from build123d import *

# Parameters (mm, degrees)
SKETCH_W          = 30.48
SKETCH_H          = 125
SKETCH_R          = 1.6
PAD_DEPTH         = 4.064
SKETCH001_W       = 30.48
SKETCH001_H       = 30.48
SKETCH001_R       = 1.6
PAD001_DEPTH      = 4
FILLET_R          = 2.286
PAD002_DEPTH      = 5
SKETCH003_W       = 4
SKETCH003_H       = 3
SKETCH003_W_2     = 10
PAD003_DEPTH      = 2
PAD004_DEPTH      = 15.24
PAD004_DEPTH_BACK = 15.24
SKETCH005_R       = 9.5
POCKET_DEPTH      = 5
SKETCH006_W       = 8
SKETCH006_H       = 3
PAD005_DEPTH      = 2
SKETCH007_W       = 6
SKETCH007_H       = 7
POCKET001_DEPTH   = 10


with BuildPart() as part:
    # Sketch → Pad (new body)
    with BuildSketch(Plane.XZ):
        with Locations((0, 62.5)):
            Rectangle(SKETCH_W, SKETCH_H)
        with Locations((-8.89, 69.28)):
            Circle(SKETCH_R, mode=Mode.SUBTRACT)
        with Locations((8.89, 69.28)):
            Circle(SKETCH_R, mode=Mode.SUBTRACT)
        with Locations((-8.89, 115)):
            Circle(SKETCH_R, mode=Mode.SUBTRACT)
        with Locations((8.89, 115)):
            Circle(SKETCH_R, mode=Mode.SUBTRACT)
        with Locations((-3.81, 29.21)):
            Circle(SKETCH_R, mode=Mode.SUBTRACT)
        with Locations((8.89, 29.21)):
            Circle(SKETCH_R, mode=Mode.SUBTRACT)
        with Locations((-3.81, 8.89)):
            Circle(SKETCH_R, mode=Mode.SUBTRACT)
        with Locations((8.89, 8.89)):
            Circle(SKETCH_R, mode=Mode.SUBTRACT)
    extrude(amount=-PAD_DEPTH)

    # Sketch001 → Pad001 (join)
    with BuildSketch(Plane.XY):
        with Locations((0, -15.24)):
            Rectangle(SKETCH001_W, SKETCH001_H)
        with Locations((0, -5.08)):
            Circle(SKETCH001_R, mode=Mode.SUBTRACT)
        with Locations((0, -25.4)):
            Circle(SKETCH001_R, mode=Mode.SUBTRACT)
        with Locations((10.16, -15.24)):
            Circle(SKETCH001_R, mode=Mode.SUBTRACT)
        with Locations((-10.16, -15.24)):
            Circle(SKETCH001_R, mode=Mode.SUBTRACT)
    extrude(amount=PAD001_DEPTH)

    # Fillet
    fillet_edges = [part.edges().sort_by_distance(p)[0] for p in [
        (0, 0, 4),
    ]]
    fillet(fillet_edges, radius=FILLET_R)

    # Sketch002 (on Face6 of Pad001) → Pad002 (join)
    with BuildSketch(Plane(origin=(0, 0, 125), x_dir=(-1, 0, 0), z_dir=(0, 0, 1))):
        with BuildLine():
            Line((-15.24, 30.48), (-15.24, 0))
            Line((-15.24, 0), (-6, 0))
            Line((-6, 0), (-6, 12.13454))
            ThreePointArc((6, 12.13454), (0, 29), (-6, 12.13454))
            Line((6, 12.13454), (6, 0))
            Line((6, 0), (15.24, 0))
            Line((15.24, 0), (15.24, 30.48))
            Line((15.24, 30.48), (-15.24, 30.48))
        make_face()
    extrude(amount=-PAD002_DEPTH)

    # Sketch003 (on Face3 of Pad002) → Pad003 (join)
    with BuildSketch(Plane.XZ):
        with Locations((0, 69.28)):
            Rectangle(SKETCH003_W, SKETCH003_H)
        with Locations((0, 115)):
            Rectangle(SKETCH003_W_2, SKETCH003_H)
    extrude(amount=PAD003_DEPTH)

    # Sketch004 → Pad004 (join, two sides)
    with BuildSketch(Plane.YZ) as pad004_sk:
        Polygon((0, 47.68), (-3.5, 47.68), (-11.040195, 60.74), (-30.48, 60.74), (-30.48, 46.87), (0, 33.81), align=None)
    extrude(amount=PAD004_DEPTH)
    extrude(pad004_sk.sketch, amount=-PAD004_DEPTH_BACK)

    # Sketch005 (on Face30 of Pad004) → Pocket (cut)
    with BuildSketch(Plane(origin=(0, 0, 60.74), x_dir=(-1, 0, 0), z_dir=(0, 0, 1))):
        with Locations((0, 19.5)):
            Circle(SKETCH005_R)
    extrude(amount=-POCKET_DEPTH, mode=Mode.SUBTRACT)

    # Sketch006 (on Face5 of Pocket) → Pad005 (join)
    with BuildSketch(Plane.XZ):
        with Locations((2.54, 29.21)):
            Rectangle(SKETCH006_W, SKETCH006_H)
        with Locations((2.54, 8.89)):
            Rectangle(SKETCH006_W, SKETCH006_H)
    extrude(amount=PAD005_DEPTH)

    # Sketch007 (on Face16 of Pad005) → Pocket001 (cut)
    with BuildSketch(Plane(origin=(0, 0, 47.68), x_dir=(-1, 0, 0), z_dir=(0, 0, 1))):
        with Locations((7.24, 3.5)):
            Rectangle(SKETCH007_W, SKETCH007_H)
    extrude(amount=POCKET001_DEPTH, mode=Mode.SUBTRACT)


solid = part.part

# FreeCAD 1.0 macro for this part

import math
import FreeCAD as App
import Part
import Sketcher
Q = App.Units.Quantity


def edges_at(feature, points):
    """Names of the edges that pass closest to the given points."""
    edges = feature.Shape.Edges
    near = lambda p: min(range(len(edges)), key=lambda i: edges[i].distToShape(Part.Vertex(*p))[0])
    return sorted({f"Edge{near(p) + 1}" for p in points})

doc = App.newDocument("Part")
body = doc.addObject("PartDesign::Body", "Body")

# Sketch on XZ plane
sketch1 = doc.addObject("Sketcher::SketchObject", "Sketch")
body.addObject(sketch1)
sketch1.AttachmentSupport = (doc.XZ_Plane, [""])
sketch1.MapMode = "FlatFace"
sketch1.addGeometry([
    Part.LineSegment(App.Vector(-15.2, 125, 0), App.Vector(-15.2, 0, 0)),  # 0
    Part.LineSegment(App.Vector(-15.2, 0, 0), App.Vector(15.2, 0, 0)),  # 1
    Part.LineSegment(App.Vector(15.2, 0, 0), App.Vector(15.2, 125, 0)),  # 2
    Part.LineSegment(App.Vector(15.2, 125, 0), App.Vector(-15.2, 125, 0)),  # 3
    Part.Circle(App.Vector(-3.8, 8.9, 0), App.Vector(0, 0, 1), 1.6),  # 4
    Part.Circle(App.Vector(-3.8, 29.2, 0), App.Vector(0, 0, 1), 1.6),  # 5
    Part.Circle(App.Vector(8.9, 8.9, 0), App.Vector(0, 0, 1), 1.6),  # 6
    Part.Circle(App.Vector(8.9, 29.2, 0), App.Vector(0, 0, 1), 1.6),  # 7
    Part.Circle(App.Vector(-8.9, 69.3, 0), App.Vector(0, 0, 1), 1.6),  # 8
    Part.Circle(App.Vector(-8.9, 115, 0), App.Vector(0, 0, 1), 1.6),  # 9
    Part.Circle(App.Vector(8.9, 69.3, 0), App.Vector(0, 0, 1), 1.6),  # 10
    Part.Circle(App.Vector(8.9, 115, 0), App.Vector(0, 0, 1), 1.6),  # 11
], False)
sketch1.addConstraint([
    Sketcher.Constraint("Coincident", 0, 2, 1, 1),
    Sketcher.Constraint("Coincident", 1, 2, 2, 1),
    Sketcher.Constraint("Coincident", 2, 2, 3, 1),
    Sketcher.Constraint("Coincident", 3, 2, 0, 1),
    Sketcher.Constraint("Vertical", 0),
    Sketcher.Constraint("Horizontal", 1),
    Sketcher.Constraint("Vertical", 2),
    Sketcher.Constraint("Horizontal", 3),
    Sketcher.Constraint("Equal", 4, 5),
    Sketcher.Constraint("Equal", 5, 6),
    Sketcher.Constraint("Equal", 6, 7),
    Sketcher.Constraint("Equal", 7, 8),
    Sketcher.Constraint("Equal", 8, 9),
    Sketcher.Constraint("Equal", 9, 10),
    Sketcher.Constraint("Equal", 10, 11),
    Sketcher.Constraint("Symmetric", 0, 2, 1, 2, -1, 1),
    Sketcher.Constraint("Symmetric", 8, 3, 10, 3, -2),
    Sketcher.Constraint("Symmetric", 9, 3, 11, 3, -2),
    Sketcher.Constraint("Horizontal", 4, 3, 6, 3),
    Sketcher.Constraint("Horizontal", 5, 3, 7, 3),
    Sketcher.Constraint("Vertical", 4, 3, 5, 3),
    Sketcher.Constraint("Vertical", 6, 3, 7, 3),
    Sketcher.Constraint("Vertical", 8, 3, 9, 3),
    Sketcher.Constraint("Vertical", 7, 3, 10, 3),
    Sketcher.Constraint("Diameter", 4, 3.2),
    Sketcher.Constraint("DistanceY", 0, 2, 0, 1, 125.0),
    Sketcher.Constraint("DistanceY", -1, 1, 9, 3, 115.0),
    Sketcher.Constraint("DistanceX", 1, 1, 1, 2, 30.48),
    Sketcher.Constraint("DistanceX", 4, 3, 6, 3, 12.7),
    Sketcher.Constraint("DistanceX", 4, 3, -1, 1, 3.81),
    Sketcher.Constraint("DistanceY", -1, 1, 4, 3, 8.89),
    Sketcher.Constraint("DistanceY", -1, 1, 5, 3, 29.21),
    Sketcher.Constraint("DistanceY", -1, 1, 8, 3, 69.28),
])
pad1 = doc.addObject("PartDesign::Pad", "Pad")
body.addObject(pad1)
pad1.Profile = sketch1
pad1.Length = 4.064
pad1.Reversed = True

# Sketch on XY plane
sketch2 = doc.addObject("Sketcher::SketchObject", "Sketch001")
body.addObject(sketch2)
sketch2.AttachmentSupport = (doc.XY_Plane, [""])
sketch2.MapMode = "FlatFace"
sketch2.addGeometry([
    Part.LineSegment(App.Vector(-15.2, 0, 0), App.Vector(-15.2, -30.5, 0)),  # 0
    Part.LineSegment(App.Vector(-15.2, -30.5, 0), App.Vector(15.2, -30.5, 0)),  # 1
    Part.LineSegment(App.Vector(15.2, -30.5, 0), App.Vector(15.2, 0, 0)),  # 2
    Part.LineSegment(App.Vector(15.2, 0, 0), App.Vector(-15.2, 0, 0)),  # 3
    Part.Circle(App.Vector(0, -25.4, 0), App.Vector(0, 0, 1), 1.6),  # 4
    Part.Circle(App.Vector(-10.2, -15.2, 0), App.Vector(0, 0, 1), 1.6),  # 5
    Part.Circle(App.Vector(10.2, -15.2, 0), App.Vector(0, 0, 1), 1.6),  # 6
    Part.Circle(App.Vector(0, -5.1, 0), App.Vector(0, 0, 1), 1.6),  # 7
], False)
sketch2.addConstraint([
    Sketcher.Constraint("Coincident", 0, 2, 1, 1),
    Sketcher.Constraint("Coincident", 1, 2, 2, 1),
    Sketcher.Constraint("Coincident", 2, 2, 3, 1),
    Sketcher.Constraint("Coincident", 3, 2, 0, 1),
    Sketcher.Constraint("Vertical", 0),
    Sketcher.Constraint("Horizontal", 1),
    Sketcher.Constraint("Vertical", 2),
    Sketcher.Constraint("Horizontal", 3),
    Sketcher.Constraint("Equal", 4, 5),
    Sketcher.Constraint("Equal", 5, 6),
    Sketcher.Constraint("Equal", 6, 7),
    Sketcher.Constraint("Symmetric", 2, 2, 3, 2, -1, 1),
    Sketcher.Constraint("Symmetric", 5, 3, 6, 3, -2),
    Sketcher.Constraint("PointOnObject", 4, 3, -2),
    Sketcher.Constraint("PointOnObject", 7, 3, -2),
    Sketcher.Constraint("Equal", 3, 0),
    Sketcher.Constraint("Diameter", 4, 3.2),
    Sketcher.Constraint("DistanceX", 1, 1, 1, 2, 30.48),
    Sketcher.Constraint("DistanceY", 4, 3, -1, 1, 25.4),
    Sketcher.Constraint("DistanceX", 0, 2, 6, 3, 25.4),
    Sketcher.Constraint("DistanceY", 0, 2, 7, 3, 25.4),
    Sketcher.Constraint("DistanceY", 5, 3, -1, 1, 15.24),
])
pad2 = doc.addObject("PartDesign::Pad", "Pad001")
body.addObject(pad2)
pad2.Profile = sketch2
pad2.Length = 4
doc.recompute()

fillet = doc.addObject("PartDesign::Fillet", "Fillet")
body.addObject(fillet)
fillet.Base = (pad2, edges_at(pad2, [(0, 0, 4)]))
fillet.Radius = 2.286

# Sketch on XY plane
sketch3 = doc.addObject("Sketcher::SketchObject", "Sketch002")
body.addObject(sketch3)
sketch3.AttachmentSupport = (doc.XY_Plane, [""])
sketch3.MapMode = "FlatFace"
sketch3.AttachmentOffset = App.Placement(App.Vector(0, 0, 125), App.Rotation())
sketch3.addGeometry([
    Part.LineSegment(App.Vector(15, -30, 0), App.Vector(15, 0, 0)),  # 0
    Part.LineSegment(App.Vector(15, 0, 0), App.Vector(6, 0, 0)),  # 1
    Part.LineSegment(App.Vector(6, 0, 0), App.Vector(6, -12, 0)),  # 2
    Part.ArcOfCircle(Part.Circle(App.Vector(0, -19, 0), App.Vector(0, 0, 1), 10), math.radians(129), math.radians(411)),  # 3
    Part.LineSegment(App.Vector(-6, -12, 0), App.Vector(-6, 0, 0)),  # 4
    Part.LineSegment(App.Vector(-6, 0, 0), App.Vector(-15, 0, 0)),  # 5
    Part.LineSegment(App.Vector(-15, 0, 0), App.Vector(-15, -30, 0)),  # 6
    Part.LineSegment(App.Vector(-15, -30, 0), App.Vector(15, -30, 0)),  # 7
], False)
sketch3.addConstraint([
    Sketcher.Constraint("Coincident", 0, 2, 1, 1),
    Sketcher.Constraint("Coincident", 1, 2, 2, 1),
    Sketcher.Constraint("Coincident", 2, 2, 3, 2),
    Sketcher.Constraint("Coincident", 3, 1, 4, 1),
    Sketcher.Constraint("Coincident", 4, 2, 5, 1),
    Sketcher.Constraint("Coincident", 5, 2, 6, 1),
    Sketcher.Constraint("Coincident", 6, 2, 7, 1),
    Sketcher.Constraint("Coincident", 7, 2, 0, 1),
    Sketcher.Constraint("Vertical", 0),
    Sketcher.Constraint("Horizontal", 1),
    Sketcher.Constraint("Vertical", 2),
    Sketcher.Constraint("Vertical", 4),
    Sketcher.Constraint("Horizontal", 5),
    Sketcher.Constraint("Vertical", 6),
    Sketcher.Constraint("Horizontal", 7),
    Sketcher.Constraint("Symmetric", 1, 2, 4, 2, -1, 1),
    Sketcher.Constraint("Symmetric", 0, 2, 5, 2, -2),
    Sketcher.Constraint("PointOnObject", 3, 3, -2),
    Sketcher.Constraint("Equal", 7, 0),
    Sketcher.Constraint("Radius", 3, 9.5),
    Sketcher.Constraint("DistanceX", -1, 1, 1, 2, 6.0),
    Sketcher.Constraint("DistanceX", 1, 2, 1, 1, 9.24),
    Sketcher.Constraint("DistanceY", 3, 3, -1, 1, 19.5),
])
pad3 = doc.addObject("PartDesign::Pad", "Pad002")
body.addObject(pad3)
pad3.Profile = sketch3
pad3.Length = 5
pad3.Reversed = True

# Sketch on XZ plane
sketch4 = doc.addObject("Sketcher::SketchObject", "Sketch003")
body.addObject(sketch4)
sketch4.AttachmentSupport = (doc.XZ_Plane, [""])
sketch4.MapMode = "FlatFace"
sketch4.addGeometry([
    Part.LineSegment(App.Vector(-2, 70.8, 0), App.Vector(-2, 67.8, 0)),  # 0
    Part.LineSegment(App.Vector(-2, 67.8, 0), App.Vector(2, 67.8, 0)),  # 1
    Part.LineSegment(App.Vector(2, 67.8, 0), App.Vector(2, 70.8, 0)),  # 2
    Part.LineSegment(App.Vector(2, 70.8, 0), App.Vector(-2, 70.8, 0)),  # 3
    Part.LineSegment(App.Vector(-5, 116.5, 0), App.Vector(-5, 113.5, 0)),  # 4
    Part.LineSegment(App.Vector(-5, 113.5, 0), App.Vector(5, 113.5, 0)),  # 5
    Part.LineSegment(App.Vector(5, 113.5, 0), App.Vector(5, 116.5, 0)),  # 6
    Part.LineSegment(App.Vector(5, 116.5, 0), App.Vector(-5, 116.5, 0)),  # 7
], False)
sketch4.addConstraint([
    Sketcher.Constraint("Coincident", 0, 2, 1, 1),
    Sketcher.Constraint("Coincident", 1, 2, 2, 1),
    Sketcher.Constraint("Coincident", 2, 2, 3, 1),
    Sketcher.Constraint("Coincident", 3, 2, 0, 1),
    Sketcher.Constraint("Coincident", 4, 2, 5, 1),
    Sketcher.Constraint("Coincident", 5, 2, 6, 1),
    Sketcher.Constraint("Coincident", 6, 2, 7, 1),
    Sketcher.Constraint("Coincident", 7, 2, 4, 1),
    Sketcher.Constraint("Vertical", 0),
    Sketcher.Constraint("Horizontal", 1),
    Sketcher.Constraint("Vertical", 2),
    Sketcher.Constraint("Horizontal", 3),
    Sketcher.Constraint("Vertical", 4),
    Sketcher.Constraint("Horizontal", 5),
    Sketcher.Constraint("Vertical", 6),
    Sketcher.Constraint("Horizontal", 7),
    Sketcher.Constraint("Equal", 2, 4),
    Sketcher.Constraint("DistanceX", 1, 1, 1, 2, 4.0),
    Sketcher.Constraint("DistanceX", 5, 1, 5, 2, 10.0),
    Sketcher.Constraint("DistanceY", 0, 2, 0, 1, 3.0),
    Sketcher.Constraint("DistanceX", 0, 2, -1, 1, 2.0),
    Sketcher.Constraint("DistanceX", 4, 2, -1, 1, 5.0),
    Sketcher.Constraint("DistanceY", -1, 1, 4, 2, 113.5),
    Sketcher.Constraint("DistanceY", -1, 1, 0, 2, 67.78),
])
pad4 = doc.addObject("PartDesign::Pad", "Pad003")
body.addObject(pad4)
pad4.Profile = sketch4
pad4.Length = 2

# Sketch on YZ plane
sketch5 = doc.addObject("Sketcher::SketchObject", "Sketch004")
body.addObject(sketch5)
sketch5.AttachmentSupport = (doc.YZ_Plane, [""])
sketch5.MapMode = "FlatFace"
sketch5.addGeometry([
    Part.LineSegment(App.Vector(0, 47.7, 0), App.Vector(-3.5, 47.7, 0)),  # 0
    Part.LineSegment(App.Vector(-3.5, 47.7, 0), App.Vector(-11, 60.7, 0)),  # 1
    Part.LineSegment(App.Vector(-11, 60.7, 0), App.Vector(-30.5, 60.7, 0)),  # 2
    Part.LineSegment(App.Vector(-30.5, 60.7, 0), App.Vector(-30.5, 46.9, 0)),  # 3
    Part.LineSegment(App.Vector(-30.5, 46.9, 0), App.Vector(0, 33.8, 0)),  # 4
    Part.LineSegment(App.Vector(0, 33.8, 0), App.Vector(0, 47.7, 0)),  # 5
], False)
sketch5.addConstraint([
    Sketcher.Constraint("Coincident", 0, 2, 1, 1),
    Sketcher.Constraint("Coincident", 1, 2, 2, 1),
    Sketcher.Constraint("Coincident", 2, 2, 3, 1),
    Sketcher.Constraint("Coincident", 3, 2, 4, 1),
    Sketcher.Constraint("Coincident", 4, 2, 5, 1),
    Sketcher.Constraint("Coincident", 5, 2, 0, 1),
    Sketcher.Constraint("Horizontal", 0),
    Sketcher.Constraint("Horizontal", 2),
    Sketcher.Constraint("Vertical", 3),
    Sketcher.Constraint("Vertical", 5),
    Sketcher.Constraint("PointOnObject", 4, 2, -2),
    Sketcher.Constraint("Equal", 3, 5),
    Sketcher.Constraint("Angle", 1, Q("120.000002 deg")),
    Sketcher.Constraint("DistanceX", 0, 2, 0, 1, 3.5),
    Sketcher.Constraint("DistanceY", 3, 2, 3, 1, 13.87),
    Sketcher.Constraint("DistanceY", -1, 1, 0, 2, 47.68),
    Sketcher.Constraint("DistanceY", -1, 1, 1, 2, 60.74),
    Sketcher.Constraint("DistanceX", 2, 2, -1, 1, 30.48),
])
pad5 = doc.addObject("PartDesign::Pad", "Pad004")
body.addObject(pad5)
pad5.Profile = sketch5
pad5.Type = "TwoLengths"
pad5.Length = 15.24
pad5.Length2 = 15.24

# Sketch on XY plane
sketch6 = doc.addObject("Sketcher::SketchObject", "Sketch005")
body.addObject(sketch6)
sketch6.AttachmentSupport = (doc.XY_Plane, [""])
sketch6.MapMode = "FlatFace"
sketch6.AttachmentOffset = App.Placement(App.Vector(0, 0, 60.74), App.Rotation())
sketch6.addGeometry(Part.Circle(App.Vector(0, -20, 0), App.Vector(0, 0, 1), 10), False)
sketch6.addConstraint([
    Sketcher.Constraint("PointOnObject", 0, 3, -2),
    Sketcher.Constraint("Diameter", 0, 19.0),
    Sketcher.Constraint("DistanceY", 0, 3, -1, 1, 19.5),
])
pocket1 = doc.addObject("PartDesign::Pocket", "Pocket")
body.addObject(pocket1)
pocket1.Profile = sketch6
pocket1.Length = 5

# Sketch on XZ plane
sketch7 = doc.addObject("Sketcher::SketchObject", "Sketch006")
body.addObject(sketch7)
sketch7.AttachmentSupport = (doc.XZ_Plane, [""])
sketch7.MapMode = "FlatFace"
sketch7.addGeometry([
    Part.LineSegment(App.Vector(-1.5, 30.7, 0), App.Vector(-1.5, 27.7, 0)),  # 0
    Part.LineSegment(App.Vector(-1.5, 27.7, 0), App.Vector(6.5, 27.7, 0)),  # 1
    Part.LineSegment(App.Vector(6.5, 27.7, 0), App.Vector(6.5, 30.7, 0)),  # 2
    Part.LineSegment(App.Vector(6.5, 30.7, 0), App.Vector(-1.5, 30.7, 0)),  # 3
    Part.LineSegment(App.Vector(-1.5, 10.4, 0), App.Vector(-1.5, 7.4, 0)),  # 4
    Part.LineSegment(App.Vector(-1.5, 7.4, 0), App.Vector(6.5, 7.4, 0)),  # 5
    Part.LineSegment(App.Vector(6.5, 7.4, 0), App.Vector(6.5, 10.4, 0)),  # 6
    Part.LineSegment(App.Vector(6.5, 10.4, 0), App.Vector(-1.5, 10.4, 0)),  # 7
], False)
sketch7.addConstraint([
    Sketcher.Constraint("Coincident", 0, 2, 1, 1),
    Sketcher.Constraint("Coincident", 1, 2, 2, 1),
    Sketcher.Constraint("Coincident", 2, 2, 3, 1),
    Sketcher.Constraint("Coincident", 3, 2, 0, 1),
    Sketcher.Constraint("Coincident", 4, 2, 5, 1),
    Sketcher.Constraint("Coincident", 5, 2, 6, 1),
    Sketcher.Constraint("Coincident", 6, 2, 7, 1),
    Sketcher.Constraint("Coincident", 7, 2, 4, 1),
    Sketcher.Constraint("Vertical", 0),
    Sketcher.Constraint("Horizontal", 1),
    Sketcher.Constraint("Vertical", 2),
    Sketcher.Constraint("Horizontal", 3),
    Sketcher.Constraint("Vertical", 4),
    Sketcher.Constraint("Horizontal", 5),
    Sketcher.Constraint("Vertical", 6),
    Sketcher.Constraint("Horizontal", 7),
    Sketcher.Constraint("Vertical", 3, 2, 4, 2),
    Sketcher.Constraint("Vertical", 2, 2, 5, 2),
    Sketcher.Constraint("Equal", 2, 4),
    Sketcher.Constraint("DistanceX", 1, 1, 1, 2, 8.0),
    Sketcher.Constraint("DistanceY", 0, 2, 0, 1, 3.0),
    Sketcher.Constraint("DistanceX", 0, 2, -1, 1, 1.46),
    Sketcher.Constraint("DistanceY", -1, 1, 0, 2, 27.71),
    Sketcher.Constraint("DistanceY", -1, 1, 4, 2, 7.39),
])
pad6 = doc.addObject("PartDesign::Pad", "Pad005")
body.addObject(pad6)
pad6.Profile = sketch7
pad6.Length = 2

# Sketch on XY plane
sketch8 = doc.addObject("Sketcher::SketchObject", "Sketch007")
body.addObject(sketch8)
sketch8.AttachmentSupport = (doc.XY_Plane, [""])
sketch8.MapMode = "FlatFace"
sketch8.AttachmentOffset = App.Placement(App.Vector(0, 0, 47.68), App.Rotation())
sketch8.addGeometry([
    Part.LineSegment(App.Vector(-4, -7, 0), App.Vector(-4, 0, 0)),
    Part.LineSegment(App.Vector(-4, 0, 0), App.Vector(-10, 0, 0)),
    Part.LineSegment(App.Vector(-10, 0, 0), App.Vector(-10, -7, 0)),
    Part.LineSegment(App.Vector(-10, -7, 0), App.Vector(-4, -7, 0)),
], False)
sketch8.addConstraint([
    Sketcher.Constraint("Coincident", 0, 2, 1, 1),
    Sketcher.Constraint("Coincident", 1, 2, 2, 1),
    Sketcher.Constraint("Coincident", 2, 2, 3, 1),
    Sketcher.Constraint("Coincident", 3, 2, 0, 1),
    Sketcher.Constraint("Vertical", 0),
    Sketcher.Constraint("Horizontal", 1),
    Sketcher.Constraint("Vertical", 2),
    Sketcher.Constraint("Horizontal", 3),
    Sketcher.Constraint("PointOnObject", 0, 2, -1),
    Sketcher.Constraint("DistanceX", 1, 2, 1, 1, 6.0),
    Sketcher.Constraint("DistanceY", 0, 1, 0, 2, 7.0),
    Sketcher.Constraint("DistanceX", 0, 2, -1, 1, 4.24),
])
pocket2 = doc.addObject("PartDesign::Pocket", "Pocket001")
body.addObject(pocket2)
pocket2.Profile = sketch8
pocket2.Length = 10
pocket2.Reversed = True

doc.recompute()
